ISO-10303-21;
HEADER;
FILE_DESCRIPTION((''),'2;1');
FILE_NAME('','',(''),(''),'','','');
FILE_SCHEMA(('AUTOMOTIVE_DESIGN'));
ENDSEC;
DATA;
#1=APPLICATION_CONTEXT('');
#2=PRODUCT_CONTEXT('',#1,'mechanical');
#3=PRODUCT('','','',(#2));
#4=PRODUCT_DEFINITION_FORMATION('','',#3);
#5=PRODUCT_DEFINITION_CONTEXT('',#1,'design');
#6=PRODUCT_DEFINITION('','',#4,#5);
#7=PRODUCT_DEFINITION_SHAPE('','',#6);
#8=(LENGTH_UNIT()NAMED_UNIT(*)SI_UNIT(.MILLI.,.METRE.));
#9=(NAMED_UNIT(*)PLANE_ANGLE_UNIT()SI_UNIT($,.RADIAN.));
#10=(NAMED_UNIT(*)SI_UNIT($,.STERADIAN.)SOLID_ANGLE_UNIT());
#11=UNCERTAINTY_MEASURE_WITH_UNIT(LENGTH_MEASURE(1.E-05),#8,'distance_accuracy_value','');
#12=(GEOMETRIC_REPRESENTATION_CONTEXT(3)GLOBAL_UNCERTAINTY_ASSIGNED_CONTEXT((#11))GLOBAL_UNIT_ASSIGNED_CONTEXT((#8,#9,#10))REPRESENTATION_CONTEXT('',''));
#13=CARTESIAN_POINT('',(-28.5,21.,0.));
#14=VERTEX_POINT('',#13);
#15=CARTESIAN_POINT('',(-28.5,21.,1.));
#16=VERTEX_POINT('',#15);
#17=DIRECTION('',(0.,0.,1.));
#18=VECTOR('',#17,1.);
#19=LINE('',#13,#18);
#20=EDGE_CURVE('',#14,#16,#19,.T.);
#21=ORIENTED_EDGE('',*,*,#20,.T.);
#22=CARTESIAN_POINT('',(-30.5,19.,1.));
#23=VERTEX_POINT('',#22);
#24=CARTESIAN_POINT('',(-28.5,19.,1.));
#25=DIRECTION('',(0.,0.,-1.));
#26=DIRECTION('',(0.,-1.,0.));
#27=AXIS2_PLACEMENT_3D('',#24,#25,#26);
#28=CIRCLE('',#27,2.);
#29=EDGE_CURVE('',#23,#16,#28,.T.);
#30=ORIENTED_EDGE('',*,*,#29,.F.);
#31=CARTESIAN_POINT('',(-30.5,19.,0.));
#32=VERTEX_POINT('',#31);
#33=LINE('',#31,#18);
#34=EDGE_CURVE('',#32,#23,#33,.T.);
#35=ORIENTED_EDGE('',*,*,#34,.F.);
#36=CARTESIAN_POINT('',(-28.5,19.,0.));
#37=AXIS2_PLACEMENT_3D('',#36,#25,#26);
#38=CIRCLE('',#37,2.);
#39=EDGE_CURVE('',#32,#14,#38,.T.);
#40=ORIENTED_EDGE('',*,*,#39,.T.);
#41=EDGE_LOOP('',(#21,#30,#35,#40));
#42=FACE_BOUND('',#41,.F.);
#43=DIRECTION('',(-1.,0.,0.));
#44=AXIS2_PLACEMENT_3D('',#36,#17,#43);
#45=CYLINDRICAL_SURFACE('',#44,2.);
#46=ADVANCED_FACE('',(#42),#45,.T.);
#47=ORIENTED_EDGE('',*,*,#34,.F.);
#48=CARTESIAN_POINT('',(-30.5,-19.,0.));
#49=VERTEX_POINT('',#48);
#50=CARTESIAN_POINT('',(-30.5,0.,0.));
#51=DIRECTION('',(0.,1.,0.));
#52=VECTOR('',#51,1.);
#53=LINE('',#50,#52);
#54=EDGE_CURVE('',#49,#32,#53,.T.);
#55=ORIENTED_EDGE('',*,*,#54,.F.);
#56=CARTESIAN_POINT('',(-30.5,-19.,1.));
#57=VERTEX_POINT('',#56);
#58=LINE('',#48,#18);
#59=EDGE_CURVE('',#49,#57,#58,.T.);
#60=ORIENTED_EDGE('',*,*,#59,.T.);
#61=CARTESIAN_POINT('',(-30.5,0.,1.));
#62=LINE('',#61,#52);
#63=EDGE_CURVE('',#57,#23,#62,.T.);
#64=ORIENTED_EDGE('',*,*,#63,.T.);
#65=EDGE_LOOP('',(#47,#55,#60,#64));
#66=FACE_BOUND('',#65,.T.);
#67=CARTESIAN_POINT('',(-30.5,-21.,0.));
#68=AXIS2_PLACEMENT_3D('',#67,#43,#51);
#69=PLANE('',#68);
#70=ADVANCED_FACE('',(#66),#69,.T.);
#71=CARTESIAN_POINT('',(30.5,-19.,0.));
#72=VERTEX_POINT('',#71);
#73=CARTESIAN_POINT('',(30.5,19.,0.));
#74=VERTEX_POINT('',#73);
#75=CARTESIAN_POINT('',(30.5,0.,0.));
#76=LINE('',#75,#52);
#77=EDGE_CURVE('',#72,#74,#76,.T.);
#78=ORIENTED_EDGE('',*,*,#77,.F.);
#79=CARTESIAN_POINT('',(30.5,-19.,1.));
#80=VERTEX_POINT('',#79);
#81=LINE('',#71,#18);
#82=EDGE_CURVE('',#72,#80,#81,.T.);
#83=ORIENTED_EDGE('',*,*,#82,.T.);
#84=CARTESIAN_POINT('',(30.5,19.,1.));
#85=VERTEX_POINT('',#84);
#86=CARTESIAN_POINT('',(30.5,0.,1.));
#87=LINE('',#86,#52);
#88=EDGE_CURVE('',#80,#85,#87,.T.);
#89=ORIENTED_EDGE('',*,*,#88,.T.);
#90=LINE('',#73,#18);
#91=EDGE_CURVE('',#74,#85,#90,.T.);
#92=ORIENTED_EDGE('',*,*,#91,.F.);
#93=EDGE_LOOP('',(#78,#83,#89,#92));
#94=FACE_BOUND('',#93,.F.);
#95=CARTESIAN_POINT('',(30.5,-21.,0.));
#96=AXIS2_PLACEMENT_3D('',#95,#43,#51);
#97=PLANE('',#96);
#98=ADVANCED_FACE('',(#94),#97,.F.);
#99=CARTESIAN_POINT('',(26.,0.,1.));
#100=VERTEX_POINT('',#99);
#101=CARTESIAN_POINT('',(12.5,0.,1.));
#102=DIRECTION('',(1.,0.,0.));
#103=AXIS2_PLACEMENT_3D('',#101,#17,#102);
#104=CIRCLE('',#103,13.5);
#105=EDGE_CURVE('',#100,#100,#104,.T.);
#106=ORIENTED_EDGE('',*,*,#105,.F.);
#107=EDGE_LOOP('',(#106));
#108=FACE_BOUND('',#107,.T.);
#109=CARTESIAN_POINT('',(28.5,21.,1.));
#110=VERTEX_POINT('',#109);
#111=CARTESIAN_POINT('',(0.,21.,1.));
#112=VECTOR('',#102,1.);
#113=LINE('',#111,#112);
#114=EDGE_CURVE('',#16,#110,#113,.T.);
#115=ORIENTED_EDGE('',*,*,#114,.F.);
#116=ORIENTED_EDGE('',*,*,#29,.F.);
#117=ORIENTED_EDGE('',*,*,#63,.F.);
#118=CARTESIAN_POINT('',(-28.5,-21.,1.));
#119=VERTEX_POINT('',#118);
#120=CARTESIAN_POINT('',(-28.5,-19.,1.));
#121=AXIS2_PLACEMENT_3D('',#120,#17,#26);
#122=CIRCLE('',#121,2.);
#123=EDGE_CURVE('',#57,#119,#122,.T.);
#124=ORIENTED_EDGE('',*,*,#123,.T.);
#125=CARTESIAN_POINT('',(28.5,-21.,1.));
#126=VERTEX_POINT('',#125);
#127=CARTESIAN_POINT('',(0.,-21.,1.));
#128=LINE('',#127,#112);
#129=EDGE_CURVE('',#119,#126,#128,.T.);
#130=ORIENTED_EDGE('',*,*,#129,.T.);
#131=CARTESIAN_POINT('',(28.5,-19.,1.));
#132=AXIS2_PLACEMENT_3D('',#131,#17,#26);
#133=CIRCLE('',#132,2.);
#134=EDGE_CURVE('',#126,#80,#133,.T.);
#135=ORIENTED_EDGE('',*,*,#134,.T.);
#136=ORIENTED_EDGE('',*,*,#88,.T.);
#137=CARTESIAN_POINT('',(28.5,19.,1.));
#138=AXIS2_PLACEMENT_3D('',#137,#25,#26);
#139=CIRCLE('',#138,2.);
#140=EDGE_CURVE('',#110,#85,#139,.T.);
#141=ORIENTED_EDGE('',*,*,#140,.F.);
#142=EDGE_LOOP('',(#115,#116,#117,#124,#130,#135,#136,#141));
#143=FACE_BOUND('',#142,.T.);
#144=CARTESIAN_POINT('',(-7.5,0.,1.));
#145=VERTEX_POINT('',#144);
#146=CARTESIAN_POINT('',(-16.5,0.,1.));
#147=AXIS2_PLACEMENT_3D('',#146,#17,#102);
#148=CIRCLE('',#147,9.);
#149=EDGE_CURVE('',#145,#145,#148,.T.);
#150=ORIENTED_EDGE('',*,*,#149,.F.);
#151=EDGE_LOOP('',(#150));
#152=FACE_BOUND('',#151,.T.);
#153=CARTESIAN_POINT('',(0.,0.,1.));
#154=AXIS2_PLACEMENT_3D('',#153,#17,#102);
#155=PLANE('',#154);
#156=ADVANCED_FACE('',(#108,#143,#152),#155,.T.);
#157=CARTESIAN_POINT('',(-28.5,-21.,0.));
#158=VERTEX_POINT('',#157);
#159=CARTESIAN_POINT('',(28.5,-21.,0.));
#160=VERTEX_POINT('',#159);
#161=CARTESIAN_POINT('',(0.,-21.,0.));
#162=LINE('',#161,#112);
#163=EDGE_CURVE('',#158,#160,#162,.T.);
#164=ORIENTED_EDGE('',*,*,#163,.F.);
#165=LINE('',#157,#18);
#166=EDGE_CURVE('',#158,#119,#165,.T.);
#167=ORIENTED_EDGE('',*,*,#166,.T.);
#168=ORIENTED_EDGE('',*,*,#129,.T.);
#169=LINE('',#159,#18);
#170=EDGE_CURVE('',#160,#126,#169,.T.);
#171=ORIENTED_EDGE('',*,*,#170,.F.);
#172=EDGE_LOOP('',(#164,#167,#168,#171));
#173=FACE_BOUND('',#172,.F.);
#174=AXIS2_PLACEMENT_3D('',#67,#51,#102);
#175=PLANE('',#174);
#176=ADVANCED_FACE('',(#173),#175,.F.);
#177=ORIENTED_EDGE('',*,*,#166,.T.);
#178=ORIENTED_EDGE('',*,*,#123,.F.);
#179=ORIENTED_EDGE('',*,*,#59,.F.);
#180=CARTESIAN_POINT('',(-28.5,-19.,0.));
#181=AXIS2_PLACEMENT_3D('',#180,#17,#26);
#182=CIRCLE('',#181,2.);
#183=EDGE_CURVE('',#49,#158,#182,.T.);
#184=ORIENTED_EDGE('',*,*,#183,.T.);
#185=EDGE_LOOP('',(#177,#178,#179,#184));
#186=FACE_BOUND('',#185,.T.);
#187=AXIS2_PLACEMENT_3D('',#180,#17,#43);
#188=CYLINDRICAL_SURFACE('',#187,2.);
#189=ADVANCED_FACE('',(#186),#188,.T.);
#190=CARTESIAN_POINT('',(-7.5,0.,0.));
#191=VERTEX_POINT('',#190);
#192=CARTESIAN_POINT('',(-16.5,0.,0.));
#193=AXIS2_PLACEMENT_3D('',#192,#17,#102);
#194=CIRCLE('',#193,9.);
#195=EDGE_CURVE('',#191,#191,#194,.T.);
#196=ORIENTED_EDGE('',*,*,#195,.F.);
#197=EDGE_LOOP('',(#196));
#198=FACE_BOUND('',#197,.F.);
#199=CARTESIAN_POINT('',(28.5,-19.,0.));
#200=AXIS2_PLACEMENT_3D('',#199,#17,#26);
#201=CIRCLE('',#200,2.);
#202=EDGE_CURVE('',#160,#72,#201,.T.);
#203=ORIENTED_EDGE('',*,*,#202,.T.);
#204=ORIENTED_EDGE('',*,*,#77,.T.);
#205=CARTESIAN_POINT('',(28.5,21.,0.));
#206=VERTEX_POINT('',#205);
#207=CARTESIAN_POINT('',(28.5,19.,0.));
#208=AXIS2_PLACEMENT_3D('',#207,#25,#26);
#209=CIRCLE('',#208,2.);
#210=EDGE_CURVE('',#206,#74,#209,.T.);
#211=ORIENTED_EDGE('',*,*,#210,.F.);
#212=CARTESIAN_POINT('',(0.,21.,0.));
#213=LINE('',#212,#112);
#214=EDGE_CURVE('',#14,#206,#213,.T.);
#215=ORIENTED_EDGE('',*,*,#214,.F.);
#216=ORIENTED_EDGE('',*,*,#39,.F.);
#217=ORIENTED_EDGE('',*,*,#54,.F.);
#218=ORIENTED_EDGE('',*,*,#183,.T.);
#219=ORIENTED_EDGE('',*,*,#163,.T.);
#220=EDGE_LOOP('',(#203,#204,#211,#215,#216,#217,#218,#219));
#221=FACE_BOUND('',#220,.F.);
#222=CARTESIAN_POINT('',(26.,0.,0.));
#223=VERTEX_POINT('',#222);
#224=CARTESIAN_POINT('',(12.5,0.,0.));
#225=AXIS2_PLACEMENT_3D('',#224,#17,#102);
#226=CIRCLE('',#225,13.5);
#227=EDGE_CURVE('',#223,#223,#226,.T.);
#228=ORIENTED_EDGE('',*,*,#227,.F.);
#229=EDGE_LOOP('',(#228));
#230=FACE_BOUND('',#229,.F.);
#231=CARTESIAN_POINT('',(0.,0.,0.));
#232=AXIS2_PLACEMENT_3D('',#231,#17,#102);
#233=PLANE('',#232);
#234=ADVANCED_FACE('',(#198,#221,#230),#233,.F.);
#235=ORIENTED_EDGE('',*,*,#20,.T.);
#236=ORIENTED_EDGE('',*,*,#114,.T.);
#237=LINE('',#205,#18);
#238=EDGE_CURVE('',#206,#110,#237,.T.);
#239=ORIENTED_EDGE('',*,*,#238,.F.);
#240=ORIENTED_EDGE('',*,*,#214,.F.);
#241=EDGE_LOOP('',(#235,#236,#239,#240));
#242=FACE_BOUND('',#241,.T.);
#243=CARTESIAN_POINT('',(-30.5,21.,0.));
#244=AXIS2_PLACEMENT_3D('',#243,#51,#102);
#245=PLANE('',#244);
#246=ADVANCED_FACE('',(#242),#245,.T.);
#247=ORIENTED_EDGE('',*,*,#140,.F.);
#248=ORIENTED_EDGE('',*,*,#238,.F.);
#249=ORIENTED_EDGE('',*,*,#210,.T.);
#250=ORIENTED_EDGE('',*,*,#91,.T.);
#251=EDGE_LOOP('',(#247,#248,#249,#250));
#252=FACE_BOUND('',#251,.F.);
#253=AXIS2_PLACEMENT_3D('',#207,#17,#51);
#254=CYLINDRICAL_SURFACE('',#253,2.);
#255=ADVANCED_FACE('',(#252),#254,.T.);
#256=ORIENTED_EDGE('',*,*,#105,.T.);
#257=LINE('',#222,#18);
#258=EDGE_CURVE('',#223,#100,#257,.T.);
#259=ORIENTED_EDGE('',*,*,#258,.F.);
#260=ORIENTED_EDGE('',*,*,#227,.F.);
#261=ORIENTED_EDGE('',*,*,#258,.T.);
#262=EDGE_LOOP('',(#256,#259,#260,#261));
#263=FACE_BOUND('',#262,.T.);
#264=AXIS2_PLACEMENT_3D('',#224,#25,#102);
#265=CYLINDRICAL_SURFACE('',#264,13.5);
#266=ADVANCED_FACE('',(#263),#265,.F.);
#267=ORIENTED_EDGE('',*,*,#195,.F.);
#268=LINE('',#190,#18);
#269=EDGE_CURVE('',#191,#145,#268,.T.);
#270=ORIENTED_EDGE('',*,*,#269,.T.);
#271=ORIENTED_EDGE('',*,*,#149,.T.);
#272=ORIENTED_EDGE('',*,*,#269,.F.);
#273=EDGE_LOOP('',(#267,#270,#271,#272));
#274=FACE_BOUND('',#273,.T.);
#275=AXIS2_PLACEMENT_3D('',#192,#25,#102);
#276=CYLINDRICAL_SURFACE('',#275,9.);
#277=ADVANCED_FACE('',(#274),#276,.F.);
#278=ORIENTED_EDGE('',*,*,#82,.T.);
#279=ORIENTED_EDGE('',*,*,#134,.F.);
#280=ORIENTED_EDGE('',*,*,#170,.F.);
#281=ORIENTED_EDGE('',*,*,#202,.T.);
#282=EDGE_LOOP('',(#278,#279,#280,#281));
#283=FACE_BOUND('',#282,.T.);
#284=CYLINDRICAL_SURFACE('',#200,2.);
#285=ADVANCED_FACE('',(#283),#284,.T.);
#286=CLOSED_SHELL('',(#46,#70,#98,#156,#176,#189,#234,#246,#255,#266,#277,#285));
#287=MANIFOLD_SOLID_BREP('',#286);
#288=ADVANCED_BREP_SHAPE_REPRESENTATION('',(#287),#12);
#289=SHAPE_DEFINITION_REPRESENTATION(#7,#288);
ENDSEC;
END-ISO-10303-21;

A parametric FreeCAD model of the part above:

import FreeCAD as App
import Part
import Sketcher

V = App.Vector


def edges_at(feature, points):
    """Names of the edges that pass closest to the given points."""
    edges = feature.Shape.Edges
    near = lambda p: min(range(len(edges)), key=lambda i: edges[i].distToShape(Part.Vertex(*p))[0])
    return sorted({f"Edge{near(p) + 1}" for p in points})


def add_polygon(sketch, points):
    """Adds a closed chain of lines whose ends are joined by coincident constraints."""
    first, n = sketch.GeometryCount, len(points)
    for a, b in zip(points, points[1:] + points[:1]):
        sketch.addGeometry(Part.LineSegment(App.Vector(*a, 0), App.Vector(*b, 0)), False)
    for i in range(n):
        sketch.addConstraint(Sketcher.Constraint("Coincident", first + i, 2, first + (i + 1) % n, 1))

doc = App.newDocument("Part")
params = doc.addObject("Spreadsheet::Sheet", "Params")
for row, (alias, value) in enumerate([
    ("sketch1_diameter", "18 mm"),
    ("sketch1_diameter2", "27 mm"),
    ("sketch1_width", "61 mm"),
    ("sketch1_height", "42 mm"),
    ("pad1_length", "1 mm"),
    ("fillet_radius", "2 mm"),
], start=1):
    params.set(f"A{row}", alias)
    params.set(f"B{row}", "=" + value)
    params.setAlias(f"B{row}", alias)

body = doc.addObject("PartDesign::Body", "Body")

sketch1 = body.newObject("Sketcher::SketchObject", "Sketch")
sketch1.AttachmentSupport = (doc.getObject("XY_Plane"), [""])
sketch1.MapMode = "FlatFace"
add_polygon(sketch1, [(-30.5, 21), (-30.5, -21), (30.5, -21), (30.5, 21)])
sketch1.addGeometry(Part.Circle(V(-16.5, 0, 0), V(0, 0, 1), 9), False)
sketch1.addGeometry(Part.Circle(V(12.5, 0, 0), V(0, 0, 1), 13.5), False)
sketch1.addConstraint(Sketcher.Constraint("Vertical", 0))
sketch1.addConstraint(Sketcher.Constraint("Horizontal", 1))
sketch1.addConstraint(Sketcher.Constraint("Vertical", 2))
sketch1.addConstraint(Sketcher.Constraint("Horizontal", 3))
sketch1.addConstraint(Sketcher.Constraint("Symmetric", 0, 2, 2, 2, -1, 1))
sketch1.addConstraint(Sketcher.Constraint("PointOnObject", 4, 3, -1))
sketch1.addConstraint(Sketcher.Constraint("PointOnObject", 5, 3, -1))
sketch1.addConstraint(Sketcher.Constraint("Diameter", 4, 18.0))
sketch1.addConstraint(Sketcher.Constraint("Diameter", 5, 27.0))
sketch1.addConstraint(Sketcher.Constraint("DistanceX", 1, 1, 1, 2, 61.0))
sketch1.addConstraint(Sketcher.Constraint("DistanceY", 0, 2, 0, 1, 42.0))
sketch1.addConstraint(Sketcher.Constraint("DistanceX", 4, 3, 5, 3, 29.0))
sketch1.addConstraint(Sketcher.Constraint("DistanceX", 0, 2, 4, 3, 14.0))
sketch1.setExpression("Constraints[11]", "Params.sketch1_diameter")
sketch1.setExpression("Constraints[12]", "Params.sketch1_diameter2")
sketch1.setExpression("Constraints[13]", "Params.sketch1_width")
sketch1.setExpression("Constraints[14]", "Params.sketch1_height")
pad1 = body.newObject("PartDesign::Pad", "Pad")
pad1.Profile = sketch1
pad1.setExpression("Length", "Params.pad1_length")
doc.recompute()

fillet = body.newObject("PartDesign::Fillet", "Fillet")
fillet.Base = (pad1, edges_at(pad1, [
    (-30.5, 21, 0.5),
    (30.5, 21, 0.5),
    (30.5, -21, 0.5),
    (-30.5, -21, 0.5),
]))
fillet.setExpression("Radius", "Params.fillet_radius")

doc.recompute()
